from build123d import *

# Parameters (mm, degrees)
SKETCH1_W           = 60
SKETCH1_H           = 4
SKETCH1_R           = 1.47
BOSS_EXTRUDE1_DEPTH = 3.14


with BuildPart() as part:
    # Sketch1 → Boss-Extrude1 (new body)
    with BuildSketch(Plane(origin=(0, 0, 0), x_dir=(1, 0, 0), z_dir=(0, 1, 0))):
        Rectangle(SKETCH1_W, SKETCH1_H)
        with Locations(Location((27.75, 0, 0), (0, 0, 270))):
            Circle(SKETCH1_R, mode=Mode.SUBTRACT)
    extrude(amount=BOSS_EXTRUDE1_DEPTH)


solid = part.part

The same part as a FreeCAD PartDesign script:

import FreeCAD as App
import Part
import Sketcher

V = App.Vector


def add_polygon(sketch, points):
    """Adds a closed chain of lines whose ends are joined by coincident constraints."""
    first, n = sketch.GeometryCount, len(points)
    for a, b in zip(points, points[1:] + points[:1]):
        sketch.addGeometry(Part.LineSegment(App.Vector(*a, 0), App.Vector(*b, 0)), False)
    for i in range(n):
        sketch.addConstraint(Sketcher.Constraint("Coincident", first + i, 2, first + (i + 1) % n, 1))

doc = App.newDocument("Part")
body = doc.addObject("PartDesign::Body", "Body")

# Sketch on XZ plane
sketch1 = doc.addObject("Sketcher::SketchObject", "Sketch")
body.addObject(sketch1)
sketch1.AttachmentSupport = (doc.XZ_Plane, [""])
sketch1.MapMode = "FlatFace"
add_polygon(sketch1, [(-30, -2), (-30, 2), (30, 2), (30, -2)])  # lines 0-3
sketch1.addGeometry(Part.Circle(V(27.8, 0, 0), V(0, 0, 1), 1.5), False)  # 4
sketch1.addConstraint([
    Sketcher.Constraint("Vertical", 0),
    Sketcher.Constraint("Horizontal", 1),
    Sketcher.Constraint("Vertical", 2),
    Sketcher.Constraint("Horizontal", 3),
    Sketcher.Constraint("Symmetric", 0, 2, 2, 2, -1, 1),
    Sketcher.Constraint("PointOnObject", 4, 3, -1),
    Sketcher.Constraint("Diameter", 4, 2.94),
    Sketcher.Constraint("DistanceX", 1, 1, 1, 2, 60.0),
    Sketcher.Constraint("DistanceY", 0, 1, 0, 2, 4.0),
    Sketcher.Constraint("DistanceX", -1, 1, 4, 3, 27.75),
])
pad1 = doc.addObject("PartDesign::Pad", "Pad")
body.addObject(pad1)
pad1.Profile = sketch1
pad1.Length = 3.14
pad1.Reversed = True

doc.recompute()
